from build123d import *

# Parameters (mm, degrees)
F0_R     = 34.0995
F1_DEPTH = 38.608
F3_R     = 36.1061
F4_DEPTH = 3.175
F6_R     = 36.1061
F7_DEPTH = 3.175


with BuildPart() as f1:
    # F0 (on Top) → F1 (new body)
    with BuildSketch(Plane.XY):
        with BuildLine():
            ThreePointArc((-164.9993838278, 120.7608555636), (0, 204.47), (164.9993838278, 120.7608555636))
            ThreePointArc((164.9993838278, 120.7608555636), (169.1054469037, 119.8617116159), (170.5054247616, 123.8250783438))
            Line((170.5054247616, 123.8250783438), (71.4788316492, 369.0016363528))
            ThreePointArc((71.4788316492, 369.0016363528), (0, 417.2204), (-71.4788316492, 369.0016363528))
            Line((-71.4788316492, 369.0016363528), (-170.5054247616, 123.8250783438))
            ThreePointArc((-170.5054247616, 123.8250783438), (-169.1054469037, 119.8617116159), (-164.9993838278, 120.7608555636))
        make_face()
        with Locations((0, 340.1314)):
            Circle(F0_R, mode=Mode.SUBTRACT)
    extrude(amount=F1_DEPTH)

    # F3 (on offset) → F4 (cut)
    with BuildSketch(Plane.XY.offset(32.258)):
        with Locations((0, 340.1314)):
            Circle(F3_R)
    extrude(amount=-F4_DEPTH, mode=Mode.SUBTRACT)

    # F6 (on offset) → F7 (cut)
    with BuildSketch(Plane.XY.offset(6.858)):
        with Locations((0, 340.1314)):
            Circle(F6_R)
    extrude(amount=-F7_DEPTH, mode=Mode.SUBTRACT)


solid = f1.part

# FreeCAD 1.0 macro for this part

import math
import FreeCAD as App
import Part
import Sketcher
Q = App.Units.Quantity

doc = App.newDocument("Part")
body = doc.addObject("PartDesign::Body", "Body")

sketch1 = doc.addObject("Sketcher::SketchObject", "Sketch")
body.addObject(sketch1)
sketch1.AttachmentSupport = (doc.XY_Plane, [""])
sketch1.MapMode = "FlatFace"
sketch1.addGeometry(Part.ArcOfCircle(Part.Circle(App.Vector(0, 0, 0), App.Vector(0, 0, 1), 204.5), math.radians(36), math.radians(144)), False)
sketch1.addGeometry(Part.ArcOfCircle(Part.Circle(App.Vector(167.6, 122.6, 0), App.Vector(0, 0, 1), 3.2), math.radians(-144), math.radians(22)), False)
sketch1.addGeometry(Part.LineSegment(App.Vector(170.5, 123.8, 0), App.Vector(71.5, 369, 0)), False)
sketch1.addGeometry(Part.ArcOfCircle(Part.Circle(App.Vector(0, 340.1, 0), App.Vector(0, 0, 1), 77.1), math.radians(22), math.radians(158)), False)
sketch1.addGeometry(Part.LineSegment(App.Vector(-71.5, 369, 0), App.Vector(-170.5, 123.8, 0)), False)
sketch1.addGeometry(Part.ArcOfCircle(Part.Circle(App.Vector(-167.6, 122.6, 0), App.Vector(0, 0, 1), 3.2), math.radians(158), math.radians(324)), False)
sketch1.addGeometry(Part.Circle(App.Vector(0, 340.1, 0), App.Vector(0, 0, 1), 34.1), False)
sketch1.addConstraint(Sketcher.Constraint("Tangent", 0, 1, 1, 1))
sketch1.addConstraint(Sketcher.Constraint("Tangent", 1, 2, 2, 1))
sketch1.addConstraint(Sketcher.Constraint("Tangent", 2, 2, 3, 1))
sketch1.addConstraint(Sketcher.Constraint("Tangent", 3, 2, 4, 1))
sketch1.addConstraint(Sketcher.Constraint("Tangent", 4, 2, 5, 1))
sketch1.addConstraint(Sketcher.Constraint("Tangent", 5, 2, 0, 2))
sketch1.addConstraint(Sketcher.Constraint("Coincident", 0, 3, -1, 1))
sketch1.addConstraint(Sketcher.Constraint("Coincident", 6, 3, 3, 3))
sketch1.addConstraint(Sketcher.Constraint("Equal", 1, 5))
sketch1.addConstraint(Sketcher.Constraint("PointOnObject", 3, 3, -2))
sketch1.addConstraint(Sketcher.Constraint("Horizontal", 1, 3, 5, 3))
sketch1.addConstraint(Sketcher.Constraint("Radius", 0, Q("8.05 in")))
sketch1.addConstraint(Sketcher.Constraint("Diameter", 6, Q("2.685 in")))
sketch1.addConstraint(Sketcher.Constraint("Radius", 1, Q("0.125 in")))
sketch1.addConstraint(Sketcher.Constraint("Radius", 3, Q("3.035 in")))
sketch1.addConstraint(Sketcher.Constraint("DistanceY", -1, 1, 3, 3, Q("13.391 in")))
sketch1.addConstraint(Sketcher.Constraint("DistanceY", -1, 1, 1, 2, 123.825078))
pad1 = doc.addObject("PartDesign::Pad", "Pad")
body.addObject(pad1)
pad1.Profile = sketch1
pad1.Length = Q("1.52 in")

sketch2 = doc.addObject("Sketcher::SketchObject", "Sketch001")
body.addObject(sketch2)
sketch2.AttachmentSupport = (doc.XY_Plane, [""])
sketch2.MapMode = "FlatFace"
sketch2.AttachmentOffset = App.Placement(App.Vector(0, 0, 1.27 * 25.4), App.Rotation())
sketch2.addGeometry(Part.Circle(App.Vector(0, 340, 0), App.Vector(0, 0, 1), 36), False)
sketch2.addConstraint(Sketcher.Constraint("PointOnObject", 0, 3, -2))
sketch2.addConstraint(Sketcher.Constraint("Diameter", 0, Q("2.843 in")))
sketch2.addConstraint(Sketcher.Constraint("DistanceY", -1, 1, 0, 3, Q("13.391 in")))
pocket1 = doc.addObject("PartDesign::Pocket", "Pocket")
body.addObject(pocket1)
pocket1.Profile = sketch2
pocket1.Length = Q("0.125 in")

sketch3 = doc.addObject("Sketcher::SketchObject", "Sketch002")
body.addObject(sketch3)
sketch3.AttachmentSupport = (doc.XY_Plane, [""])
sketch3.MapMode = "FlatFace"
sketch3.AttachmentOffset = App.Placement(App.Vector(0, 0, 0.27 * 25.4), App.Rotation())
sketch3.addGeometry(Part.Circle(App.Vector(0, 340, 0), App.Vector(0, 0, 1), 36), False)
sketch3.addConstraint(Sketcher.Constraint("PointOnObject", 0, 3, -2))
sketch3.addConstraint(Sketcher.Constraint("Diameter", 0, Q("2.843 in")))
sketch3.addConstraint(Sketcher.Constraint("DistanceY", -1, 1, 0, 3, Q("13.391 in")))
pocket2 = doc.addObject("PartDesign::Pocket", "Pocket001")
body.addObject(pocket2)
pocket2.Profile = sketch3
pocket2.Length = Q("0.125 in")

doc.recompute()
